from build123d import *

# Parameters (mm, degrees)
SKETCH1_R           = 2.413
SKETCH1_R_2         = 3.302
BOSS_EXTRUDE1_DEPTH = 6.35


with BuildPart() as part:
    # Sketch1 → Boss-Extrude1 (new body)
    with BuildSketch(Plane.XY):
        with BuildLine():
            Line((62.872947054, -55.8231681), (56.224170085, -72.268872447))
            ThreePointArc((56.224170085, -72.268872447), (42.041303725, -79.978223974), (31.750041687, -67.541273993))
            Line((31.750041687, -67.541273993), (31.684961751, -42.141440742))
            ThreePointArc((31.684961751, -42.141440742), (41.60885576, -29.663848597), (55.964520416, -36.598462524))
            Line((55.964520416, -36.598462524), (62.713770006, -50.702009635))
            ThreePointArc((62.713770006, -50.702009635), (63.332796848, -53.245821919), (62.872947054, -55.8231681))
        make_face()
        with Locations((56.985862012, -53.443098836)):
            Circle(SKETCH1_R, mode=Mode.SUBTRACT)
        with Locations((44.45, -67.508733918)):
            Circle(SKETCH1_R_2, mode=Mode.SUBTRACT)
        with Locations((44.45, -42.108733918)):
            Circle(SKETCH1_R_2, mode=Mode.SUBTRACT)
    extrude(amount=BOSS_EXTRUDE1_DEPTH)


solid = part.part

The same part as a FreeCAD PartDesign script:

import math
import FreeCAD as App
import Part
import Sketcher
from FreeCAD import Vector
Q = App.Units.Quantity

doc = App.newDocument("Part")
body = doc.addObject("PartDesign::Body", "Body")

# Sketch on XY plane
sketch1 = doc.addObject("Sketcher::SketchObject", "Sketch")
body.addObject(sketch1)
sketch1.AttachmentSupport = (doc.XY_Plane, [""])
sketch1.MapMode = "FlatFace"
sketch1.addGeometry(Part.LineSegment(Vector(56.2, -72.3, 0), Vector(62.9, -55.8, 0)), False)
sketch1.addGeometry(Part.ArcOfCircle(Part.Circle(Vector(57, -53.4, 0), Vector(0, 0, 1), 6.3), math.radians(-22), math.radians(26)), False)
sketch1.addGeometry(Part.LineSegment(Vector(62.7, -50.7, 0), Vector(56, -36.6, 0)), False)
sketch1.addGeometry(Part.ArcOfCircle(Part.Circle(Vector(44.5, -42.1, 0), Vector(0, 0, 1), 12.8), math.radians(26), math.radians(180)), False)
sketch1.addGeometry(Part.LineSegment(Vector(31.7, -42.1, 0), Vector(31.8, -67.5, 0)), False)
sketch1.addGeometry(Part.ArcOfCircle(Part.Circle(Vector(44.5, -67.5, 0), Vector(0, 0, 1), 12.7), math.radians(-180), math.radians(-22)), False)
sketch1.addGeometry(Part.Circle(Vector(44.5, -67.5, 0), Vector(0, 0, 1), 3.3), False)
sketch1.addGeometry(Part.Circle(Vector(57, -53.4, 0), Vector(0, 0, 1), 2.4), False)
sketch1.addGeometry(Part.Circle(Vector(44.5, -42.1, 0), Vector(0, 0, 1), 3.3), False)
sketch1.addConstraint(Sketcher.Constraint("Tangent", 0, 2, 1, 1))
sketch1.addConstraint(Sketcher.Constraint("Tangent", 1, 2, 2, 1))
sketch1.addConstraint(Sketcher.Constraint("Tangent", 2, 2, 3, 1))
sketch1.addConstraint(Sketcher.Constraint("Tangent", 3, 2, 4, 1))
sketch1.addConstraint(Sketcher.Constraint("Tangent", 4, 2, 5, 1))
sketch1.addConstraint(Sketcher.Constraint("Tangent", 5, 2, 0, 1))
sketch1.addConstraint(Sketcher.Constraint("Coincident", 6, 3, 5, 3))
sketch1.addConstraint(Sketcher.Constraint("Coincident", 7, 3, 1, 3))
sketch1.addConstraint(Sketcher.Constraint("Coincident", 8, 3, 3, 3))
sketch1.addConstraint(Sketcher.Constraint("Equal", 6, 8))
sketch1.addConstraint(Sketcher.Constraint("Vertical", 3, 3, 5, 3))
sketch1.addConstraint(Sketcher.Constraint("Radius", 5, Q("0.5 in")))
sketch1.addConstraint(Sketcher.Constraint("Diameter", 6, Q("0.26 in")))
sketch1.addConstraint(Sketcher.Constraint("Diameter", 7, Q("0.19 in")))
sketch1.addConstraint(Sketcher.Constraint("Radius", 1, Q("0.25 in")))
sketch1.addConstraint(Sketcher.Constraint("DistanceY", 5, 3, 3, 3, Q("1 in")))
sketch1.addConstraint(Sketcher.Constraint("DistanceX", -1, 1, 3, 3, Q("1.75 in")))
sketch1.addConstraint(Sketcher.Constraint("Radius", 3, Q("12.76508 mm")))
sketch1.addConstraint(Sketcher.Constraint("DistanceY", 1, 3, -1, 1, Q("53.443099 mm")))
sketch1.addConstraint(Sketcher.Constraint("DistanceX", 3, 2, 1, 3, Q("25.3009 mm")))
sketch1.addConstraint(Sketcher.Constraint("DistanceY", 0, 2, -1, 1, Q("55.823168 mm")))
pad1 = doc.addObject("PartDesign::Pad", "Pad")
body.addObject(pad1)
pad1.Profile = sketch1
pad1.Length = Q("0.25 in")

doc.recompute()
